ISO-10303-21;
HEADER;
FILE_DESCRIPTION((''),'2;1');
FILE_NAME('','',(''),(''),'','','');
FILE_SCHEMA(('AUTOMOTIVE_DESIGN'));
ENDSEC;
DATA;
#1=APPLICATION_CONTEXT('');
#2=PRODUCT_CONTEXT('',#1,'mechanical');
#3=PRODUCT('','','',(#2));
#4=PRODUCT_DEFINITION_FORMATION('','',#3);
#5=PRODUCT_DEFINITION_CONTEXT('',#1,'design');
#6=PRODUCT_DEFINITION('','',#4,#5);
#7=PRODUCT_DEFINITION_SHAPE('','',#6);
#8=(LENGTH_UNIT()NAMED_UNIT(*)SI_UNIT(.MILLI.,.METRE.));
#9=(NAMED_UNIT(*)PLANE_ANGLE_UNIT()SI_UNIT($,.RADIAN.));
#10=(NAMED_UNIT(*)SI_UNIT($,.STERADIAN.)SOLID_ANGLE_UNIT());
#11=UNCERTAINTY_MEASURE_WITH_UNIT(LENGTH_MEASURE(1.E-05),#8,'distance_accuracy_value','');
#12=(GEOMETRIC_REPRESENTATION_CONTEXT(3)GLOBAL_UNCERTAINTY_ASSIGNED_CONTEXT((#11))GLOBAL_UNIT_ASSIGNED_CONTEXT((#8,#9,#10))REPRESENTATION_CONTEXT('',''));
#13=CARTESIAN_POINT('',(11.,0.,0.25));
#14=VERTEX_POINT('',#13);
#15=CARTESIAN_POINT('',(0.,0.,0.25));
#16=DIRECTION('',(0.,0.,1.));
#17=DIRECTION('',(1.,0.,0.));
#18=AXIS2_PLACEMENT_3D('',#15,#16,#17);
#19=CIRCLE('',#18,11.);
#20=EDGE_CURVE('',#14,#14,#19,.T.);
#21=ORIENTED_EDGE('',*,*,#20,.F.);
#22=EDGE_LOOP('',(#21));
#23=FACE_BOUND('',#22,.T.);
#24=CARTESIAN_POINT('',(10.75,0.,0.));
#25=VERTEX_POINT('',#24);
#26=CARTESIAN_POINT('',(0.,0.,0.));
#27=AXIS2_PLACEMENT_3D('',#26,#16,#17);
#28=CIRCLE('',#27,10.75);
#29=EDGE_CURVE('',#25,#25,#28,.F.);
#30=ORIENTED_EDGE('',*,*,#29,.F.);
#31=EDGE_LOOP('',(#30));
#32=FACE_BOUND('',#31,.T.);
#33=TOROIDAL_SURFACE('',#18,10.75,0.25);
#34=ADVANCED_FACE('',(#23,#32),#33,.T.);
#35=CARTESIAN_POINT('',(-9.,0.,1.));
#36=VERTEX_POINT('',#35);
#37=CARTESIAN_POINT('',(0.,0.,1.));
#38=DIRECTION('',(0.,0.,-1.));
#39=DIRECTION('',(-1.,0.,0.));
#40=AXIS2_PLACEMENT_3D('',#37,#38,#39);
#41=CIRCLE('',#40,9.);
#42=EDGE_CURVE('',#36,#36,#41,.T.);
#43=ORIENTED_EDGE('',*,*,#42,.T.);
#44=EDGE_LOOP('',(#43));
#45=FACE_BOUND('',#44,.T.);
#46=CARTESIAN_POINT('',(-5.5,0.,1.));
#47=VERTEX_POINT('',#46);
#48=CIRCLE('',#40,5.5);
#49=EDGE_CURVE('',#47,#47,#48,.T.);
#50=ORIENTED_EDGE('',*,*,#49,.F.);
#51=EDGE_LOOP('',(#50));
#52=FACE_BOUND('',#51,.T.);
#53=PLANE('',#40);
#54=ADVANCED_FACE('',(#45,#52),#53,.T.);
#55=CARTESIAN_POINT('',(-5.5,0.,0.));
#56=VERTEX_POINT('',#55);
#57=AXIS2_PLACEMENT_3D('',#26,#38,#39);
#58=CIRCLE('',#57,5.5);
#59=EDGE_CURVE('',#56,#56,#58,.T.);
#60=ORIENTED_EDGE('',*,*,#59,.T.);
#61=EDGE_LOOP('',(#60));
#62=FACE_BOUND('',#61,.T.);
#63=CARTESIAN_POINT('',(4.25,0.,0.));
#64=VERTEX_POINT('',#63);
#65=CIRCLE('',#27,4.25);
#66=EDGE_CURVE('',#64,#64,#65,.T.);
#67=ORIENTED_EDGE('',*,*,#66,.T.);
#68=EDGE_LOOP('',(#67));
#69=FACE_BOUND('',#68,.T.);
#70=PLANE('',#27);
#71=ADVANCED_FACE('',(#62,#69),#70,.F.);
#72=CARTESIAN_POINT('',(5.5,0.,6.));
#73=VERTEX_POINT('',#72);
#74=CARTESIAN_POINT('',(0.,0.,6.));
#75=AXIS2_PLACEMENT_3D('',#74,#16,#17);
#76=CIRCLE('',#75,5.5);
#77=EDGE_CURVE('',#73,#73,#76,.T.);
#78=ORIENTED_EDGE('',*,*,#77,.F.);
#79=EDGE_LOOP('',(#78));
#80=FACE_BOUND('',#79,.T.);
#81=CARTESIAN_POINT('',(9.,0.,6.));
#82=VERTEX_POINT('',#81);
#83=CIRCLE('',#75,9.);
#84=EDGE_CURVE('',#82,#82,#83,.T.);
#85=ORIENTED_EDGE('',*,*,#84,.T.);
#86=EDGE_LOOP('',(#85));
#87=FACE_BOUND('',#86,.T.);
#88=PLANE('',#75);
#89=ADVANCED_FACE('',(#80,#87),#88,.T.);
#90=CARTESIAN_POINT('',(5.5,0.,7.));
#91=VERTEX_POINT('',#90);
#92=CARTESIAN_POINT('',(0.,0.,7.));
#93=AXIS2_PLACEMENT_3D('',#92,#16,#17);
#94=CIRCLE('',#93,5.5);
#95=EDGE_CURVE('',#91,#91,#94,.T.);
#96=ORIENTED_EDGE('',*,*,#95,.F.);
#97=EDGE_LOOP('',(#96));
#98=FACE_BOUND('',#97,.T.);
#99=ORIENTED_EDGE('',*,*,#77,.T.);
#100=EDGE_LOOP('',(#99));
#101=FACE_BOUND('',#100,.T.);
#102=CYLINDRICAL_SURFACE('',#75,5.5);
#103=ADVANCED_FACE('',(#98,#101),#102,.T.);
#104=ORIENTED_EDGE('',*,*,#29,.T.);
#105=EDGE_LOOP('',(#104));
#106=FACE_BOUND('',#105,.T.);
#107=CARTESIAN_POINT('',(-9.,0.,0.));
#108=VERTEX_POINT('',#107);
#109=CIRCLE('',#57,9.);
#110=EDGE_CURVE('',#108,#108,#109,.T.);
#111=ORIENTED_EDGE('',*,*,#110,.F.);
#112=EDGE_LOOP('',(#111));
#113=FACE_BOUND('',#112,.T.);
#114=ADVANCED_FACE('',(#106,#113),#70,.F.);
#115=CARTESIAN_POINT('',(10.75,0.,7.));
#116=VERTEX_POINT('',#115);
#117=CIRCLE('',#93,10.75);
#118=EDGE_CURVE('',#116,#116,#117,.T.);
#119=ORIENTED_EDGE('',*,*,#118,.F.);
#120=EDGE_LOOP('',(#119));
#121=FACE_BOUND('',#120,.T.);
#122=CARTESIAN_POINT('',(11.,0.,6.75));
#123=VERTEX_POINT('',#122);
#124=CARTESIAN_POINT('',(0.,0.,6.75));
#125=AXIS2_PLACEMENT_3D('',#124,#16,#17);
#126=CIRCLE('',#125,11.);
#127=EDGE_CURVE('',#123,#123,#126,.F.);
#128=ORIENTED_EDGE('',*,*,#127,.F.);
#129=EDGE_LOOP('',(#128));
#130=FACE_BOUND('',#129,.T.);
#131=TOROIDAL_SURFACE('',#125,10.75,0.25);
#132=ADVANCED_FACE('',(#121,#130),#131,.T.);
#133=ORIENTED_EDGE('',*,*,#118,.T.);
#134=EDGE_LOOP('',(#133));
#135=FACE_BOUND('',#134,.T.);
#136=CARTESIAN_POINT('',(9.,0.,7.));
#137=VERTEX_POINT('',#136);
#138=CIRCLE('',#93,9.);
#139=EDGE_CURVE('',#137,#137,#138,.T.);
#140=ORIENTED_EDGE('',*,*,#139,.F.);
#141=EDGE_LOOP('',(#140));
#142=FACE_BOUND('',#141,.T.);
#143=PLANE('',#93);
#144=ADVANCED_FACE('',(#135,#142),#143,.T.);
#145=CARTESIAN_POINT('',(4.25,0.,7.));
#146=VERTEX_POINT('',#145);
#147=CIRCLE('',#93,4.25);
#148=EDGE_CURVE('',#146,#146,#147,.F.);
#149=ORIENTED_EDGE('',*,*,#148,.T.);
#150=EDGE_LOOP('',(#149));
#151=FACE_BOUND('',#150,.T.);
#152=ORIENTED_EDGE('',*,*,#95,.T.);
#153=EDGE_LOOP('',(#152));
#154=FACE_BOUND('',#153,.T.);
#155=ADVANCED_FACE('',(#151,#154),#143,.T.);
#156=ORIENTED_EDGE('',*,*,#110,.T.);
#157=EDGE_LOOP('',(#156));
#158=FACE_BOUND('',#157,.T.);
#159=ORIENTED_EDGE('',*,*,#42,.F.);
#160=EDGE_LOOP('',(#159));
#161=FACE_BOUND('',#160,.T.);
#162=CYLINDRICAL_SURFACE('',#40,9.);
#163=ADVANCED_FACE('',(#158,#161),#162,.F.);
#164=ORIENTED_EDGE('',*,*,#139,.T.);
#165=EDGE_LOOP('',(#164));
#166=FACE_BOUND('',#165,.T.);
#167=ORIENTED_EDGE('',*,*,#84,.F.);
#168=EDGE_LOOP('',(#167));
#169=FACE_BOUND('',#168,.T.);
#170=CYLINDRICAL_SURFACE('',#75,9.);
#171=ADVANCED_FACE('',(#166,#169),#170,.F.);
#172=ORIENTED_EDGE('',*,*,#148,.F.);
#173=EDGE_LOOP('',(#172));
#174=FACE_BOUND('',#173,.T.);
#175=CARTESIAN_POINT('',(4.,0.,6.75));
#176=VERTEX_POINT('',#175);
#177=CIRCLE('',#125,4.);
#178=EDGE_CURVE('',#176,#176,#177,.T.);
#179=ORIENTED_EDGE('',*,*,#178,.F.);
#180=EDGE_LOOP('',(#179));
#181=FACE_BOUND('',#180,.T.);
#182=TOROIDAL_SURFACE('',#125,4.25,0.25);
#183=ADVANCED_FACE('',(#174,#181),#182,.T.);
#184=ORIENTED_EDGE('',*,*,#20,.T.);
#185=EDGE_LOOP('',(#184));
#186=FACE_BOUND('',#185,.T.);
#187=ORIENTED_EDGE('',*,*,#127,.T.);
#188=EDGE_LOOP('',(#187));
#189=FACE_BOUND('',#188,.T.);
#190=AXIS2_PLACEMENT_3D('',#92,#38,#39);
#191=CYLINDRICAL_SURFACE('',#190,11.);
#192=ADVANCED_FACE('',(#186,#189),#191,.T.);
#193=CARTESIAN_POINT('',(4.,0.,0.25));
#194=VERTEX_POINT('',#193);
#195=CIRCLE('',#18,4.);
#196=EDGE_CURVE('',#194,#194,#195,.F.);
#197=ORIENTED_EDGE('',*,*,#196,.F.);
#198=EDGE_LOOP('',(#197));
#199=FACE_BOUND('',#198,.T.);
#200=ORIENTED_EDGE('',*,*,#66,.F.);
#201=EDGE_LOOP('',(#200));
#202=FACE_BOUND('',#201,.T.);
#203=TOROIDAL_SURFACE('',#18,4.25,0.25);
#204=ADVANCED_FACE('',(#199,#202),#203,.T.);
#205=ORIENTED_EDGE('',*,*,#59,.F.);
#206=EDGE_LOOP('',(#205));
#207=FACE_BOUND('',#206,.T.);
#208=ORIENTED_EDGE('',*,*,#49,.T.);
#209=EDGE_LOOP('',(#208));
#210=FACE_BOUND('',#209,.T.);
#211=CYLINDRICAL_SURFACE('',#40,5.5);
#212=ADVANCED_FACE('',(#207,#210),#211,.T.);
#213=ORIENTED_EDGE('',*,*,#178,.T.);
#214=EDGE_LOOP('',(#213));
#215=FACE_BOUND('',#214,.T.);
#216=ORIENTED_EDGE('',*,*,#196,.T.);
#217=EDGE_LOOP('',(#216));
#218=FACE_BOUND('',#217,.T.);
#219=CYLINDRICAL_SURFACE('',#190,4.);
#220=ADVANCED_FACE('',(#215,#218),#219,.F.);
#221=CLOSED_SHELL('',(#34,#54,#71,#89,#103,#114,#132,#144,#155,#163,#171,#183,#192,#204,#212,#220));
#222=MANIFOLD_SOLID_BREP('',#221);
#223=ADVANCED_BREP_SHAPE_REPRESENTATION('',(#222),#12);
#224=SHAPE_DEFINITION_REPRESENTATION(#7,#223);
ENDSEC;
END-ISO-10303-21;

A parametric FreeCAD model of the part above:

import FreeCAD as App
import Part
import Sketcher
from FreeCAD import Vector


def edges_at(feature, points):
    """Names of the edges that pass closest to the given points."""
    edges = feature.Shape.Edges
    near = lambda p: min(range(len(edges)), key=lambda i: edges[i].distToShape(Part.Vertex(*p))[0])
    return sorted({f"Edge{near(p) + 1}" for p in points})

doc = App.newDocument("Part")
body = doc.addObject("PartDesign::Body", "Body")

# Sketch on XY plane
sketch1 = body.newObject("Sketcher::SketchObject", "Sketch")
sketch1.AttachmentSupport = (doc.getObject("XY_Plane"), [""])
sketch1.MapMode = "FlatFace"
sketch1.addGeometry(Part.Circle(Vector(0, 0, 0), Vector(0, 0, 1), 11), False)
sketch1.addGeometry(Part.Circle(Vector(0, 0, 0), Vector(0, 0, 1), 4), False)
sketch1.addConstraint(Sketcher.Constraint("Coincident", 0, 3, -1, 1))
sketch1.addConstraint(Sketcher.Constraint("Coincident", 1, 3, -1, 1))
sketch1.addConstraint(Sketcher.Constraint("Diameter", 0, 22.0))
sketch1.addConstraint(Sketcher.Constraint("Diameter", 1, 8.0))
pad1 = body.newObject("PartDesign::Pad", "Pad")
pad1.Profile = sketch1
pad1.Length = 7
doc.recompute()

fillet = body.newObject("PartDesign::Fillet", "Fillet")
fillet.Base = (pad1, edges_at(pad1, [
    (-11, 0, 0),
    (-11, 0, 7),
    (-4, 0, 0),
    (-4, 0, 7),
]))
fillet.Radius = 0.25

# Sketch on XY plane
sketch2 = body.newObject("Sketcher::SketchObject", "Sketch001")
sketch2.AttachmentSupport = (doc.getObject("XY_Plane"), [""])
sketch2.MapMode = "FlatFace"
sketch2.AttachmentOffset = App.Placement(Vector(0, 0, 7), App.Rotation())
sketch2.addGeometry(Part.Circle(Vector(0, 0, 0), Vector(0, 0, 1), 9), False)
sketch2.addGeometry(Part.Circle(Vector(0, 0, 0), Vector(0, 0, 1), 6), False)
sketch2.addConstraint(Sketcher.Constraint("Coincident", 0, 3, -1, 1))
sketch2.addConstraint(Sketcher.Constraint("Coincident", 1, 3, -1, 1))
sketch2.addConstraint(Sketcher.Constraint("Diameter", 0, 18.0))
sketch2.addConstraint(Sketcher.Constraint("Diameter", 1, 11.0))
pocket1 = body.newObject("PartDesign::Pocket", "Pocket")
pocket1.Profile = sketch2
pocket1.Length = 1

# Sketch on XY plane
sketch3 = body.newObject("Sketcher::SketchObject", "Sketch002")
sketch3.AttachmentSupport = (doc.getObject("XY_Plane"), [""])
sketch3.MapMode = "FlatFace"
sketch3.AttachmentOffset = App.Placement(Vector(0, 0, 1), App.Rotation())
sketch3.addGeometry(Part.Circle(Vector(0, 0, 0), Vector(0, 0, 1), 9), False)
sketch3.addGeometry(Part.Circle(Vector(0, 0, 0), Vector(0, 0, 1), 6), False)
sketch3.addConstraint(Sketcher.Constraint("Coincident", 0, 3, -1, 1))
sketch3.addConstraint(Sketcher.Constraint("Coincident", 1, 3, -1, 1))
sketch3.addConstraint(Sketcher.Constraint("Diameter", 0, 18.0))
sketch3.addConstraint(Sketcher.Constraint("Diameter", 1, 11.0))
pocket2 = body.newObject("PartDesign::Pocket", "Pocket001")
pocket2.Profile = sketch3
pocket2.Length = 1

doc.recompute()
